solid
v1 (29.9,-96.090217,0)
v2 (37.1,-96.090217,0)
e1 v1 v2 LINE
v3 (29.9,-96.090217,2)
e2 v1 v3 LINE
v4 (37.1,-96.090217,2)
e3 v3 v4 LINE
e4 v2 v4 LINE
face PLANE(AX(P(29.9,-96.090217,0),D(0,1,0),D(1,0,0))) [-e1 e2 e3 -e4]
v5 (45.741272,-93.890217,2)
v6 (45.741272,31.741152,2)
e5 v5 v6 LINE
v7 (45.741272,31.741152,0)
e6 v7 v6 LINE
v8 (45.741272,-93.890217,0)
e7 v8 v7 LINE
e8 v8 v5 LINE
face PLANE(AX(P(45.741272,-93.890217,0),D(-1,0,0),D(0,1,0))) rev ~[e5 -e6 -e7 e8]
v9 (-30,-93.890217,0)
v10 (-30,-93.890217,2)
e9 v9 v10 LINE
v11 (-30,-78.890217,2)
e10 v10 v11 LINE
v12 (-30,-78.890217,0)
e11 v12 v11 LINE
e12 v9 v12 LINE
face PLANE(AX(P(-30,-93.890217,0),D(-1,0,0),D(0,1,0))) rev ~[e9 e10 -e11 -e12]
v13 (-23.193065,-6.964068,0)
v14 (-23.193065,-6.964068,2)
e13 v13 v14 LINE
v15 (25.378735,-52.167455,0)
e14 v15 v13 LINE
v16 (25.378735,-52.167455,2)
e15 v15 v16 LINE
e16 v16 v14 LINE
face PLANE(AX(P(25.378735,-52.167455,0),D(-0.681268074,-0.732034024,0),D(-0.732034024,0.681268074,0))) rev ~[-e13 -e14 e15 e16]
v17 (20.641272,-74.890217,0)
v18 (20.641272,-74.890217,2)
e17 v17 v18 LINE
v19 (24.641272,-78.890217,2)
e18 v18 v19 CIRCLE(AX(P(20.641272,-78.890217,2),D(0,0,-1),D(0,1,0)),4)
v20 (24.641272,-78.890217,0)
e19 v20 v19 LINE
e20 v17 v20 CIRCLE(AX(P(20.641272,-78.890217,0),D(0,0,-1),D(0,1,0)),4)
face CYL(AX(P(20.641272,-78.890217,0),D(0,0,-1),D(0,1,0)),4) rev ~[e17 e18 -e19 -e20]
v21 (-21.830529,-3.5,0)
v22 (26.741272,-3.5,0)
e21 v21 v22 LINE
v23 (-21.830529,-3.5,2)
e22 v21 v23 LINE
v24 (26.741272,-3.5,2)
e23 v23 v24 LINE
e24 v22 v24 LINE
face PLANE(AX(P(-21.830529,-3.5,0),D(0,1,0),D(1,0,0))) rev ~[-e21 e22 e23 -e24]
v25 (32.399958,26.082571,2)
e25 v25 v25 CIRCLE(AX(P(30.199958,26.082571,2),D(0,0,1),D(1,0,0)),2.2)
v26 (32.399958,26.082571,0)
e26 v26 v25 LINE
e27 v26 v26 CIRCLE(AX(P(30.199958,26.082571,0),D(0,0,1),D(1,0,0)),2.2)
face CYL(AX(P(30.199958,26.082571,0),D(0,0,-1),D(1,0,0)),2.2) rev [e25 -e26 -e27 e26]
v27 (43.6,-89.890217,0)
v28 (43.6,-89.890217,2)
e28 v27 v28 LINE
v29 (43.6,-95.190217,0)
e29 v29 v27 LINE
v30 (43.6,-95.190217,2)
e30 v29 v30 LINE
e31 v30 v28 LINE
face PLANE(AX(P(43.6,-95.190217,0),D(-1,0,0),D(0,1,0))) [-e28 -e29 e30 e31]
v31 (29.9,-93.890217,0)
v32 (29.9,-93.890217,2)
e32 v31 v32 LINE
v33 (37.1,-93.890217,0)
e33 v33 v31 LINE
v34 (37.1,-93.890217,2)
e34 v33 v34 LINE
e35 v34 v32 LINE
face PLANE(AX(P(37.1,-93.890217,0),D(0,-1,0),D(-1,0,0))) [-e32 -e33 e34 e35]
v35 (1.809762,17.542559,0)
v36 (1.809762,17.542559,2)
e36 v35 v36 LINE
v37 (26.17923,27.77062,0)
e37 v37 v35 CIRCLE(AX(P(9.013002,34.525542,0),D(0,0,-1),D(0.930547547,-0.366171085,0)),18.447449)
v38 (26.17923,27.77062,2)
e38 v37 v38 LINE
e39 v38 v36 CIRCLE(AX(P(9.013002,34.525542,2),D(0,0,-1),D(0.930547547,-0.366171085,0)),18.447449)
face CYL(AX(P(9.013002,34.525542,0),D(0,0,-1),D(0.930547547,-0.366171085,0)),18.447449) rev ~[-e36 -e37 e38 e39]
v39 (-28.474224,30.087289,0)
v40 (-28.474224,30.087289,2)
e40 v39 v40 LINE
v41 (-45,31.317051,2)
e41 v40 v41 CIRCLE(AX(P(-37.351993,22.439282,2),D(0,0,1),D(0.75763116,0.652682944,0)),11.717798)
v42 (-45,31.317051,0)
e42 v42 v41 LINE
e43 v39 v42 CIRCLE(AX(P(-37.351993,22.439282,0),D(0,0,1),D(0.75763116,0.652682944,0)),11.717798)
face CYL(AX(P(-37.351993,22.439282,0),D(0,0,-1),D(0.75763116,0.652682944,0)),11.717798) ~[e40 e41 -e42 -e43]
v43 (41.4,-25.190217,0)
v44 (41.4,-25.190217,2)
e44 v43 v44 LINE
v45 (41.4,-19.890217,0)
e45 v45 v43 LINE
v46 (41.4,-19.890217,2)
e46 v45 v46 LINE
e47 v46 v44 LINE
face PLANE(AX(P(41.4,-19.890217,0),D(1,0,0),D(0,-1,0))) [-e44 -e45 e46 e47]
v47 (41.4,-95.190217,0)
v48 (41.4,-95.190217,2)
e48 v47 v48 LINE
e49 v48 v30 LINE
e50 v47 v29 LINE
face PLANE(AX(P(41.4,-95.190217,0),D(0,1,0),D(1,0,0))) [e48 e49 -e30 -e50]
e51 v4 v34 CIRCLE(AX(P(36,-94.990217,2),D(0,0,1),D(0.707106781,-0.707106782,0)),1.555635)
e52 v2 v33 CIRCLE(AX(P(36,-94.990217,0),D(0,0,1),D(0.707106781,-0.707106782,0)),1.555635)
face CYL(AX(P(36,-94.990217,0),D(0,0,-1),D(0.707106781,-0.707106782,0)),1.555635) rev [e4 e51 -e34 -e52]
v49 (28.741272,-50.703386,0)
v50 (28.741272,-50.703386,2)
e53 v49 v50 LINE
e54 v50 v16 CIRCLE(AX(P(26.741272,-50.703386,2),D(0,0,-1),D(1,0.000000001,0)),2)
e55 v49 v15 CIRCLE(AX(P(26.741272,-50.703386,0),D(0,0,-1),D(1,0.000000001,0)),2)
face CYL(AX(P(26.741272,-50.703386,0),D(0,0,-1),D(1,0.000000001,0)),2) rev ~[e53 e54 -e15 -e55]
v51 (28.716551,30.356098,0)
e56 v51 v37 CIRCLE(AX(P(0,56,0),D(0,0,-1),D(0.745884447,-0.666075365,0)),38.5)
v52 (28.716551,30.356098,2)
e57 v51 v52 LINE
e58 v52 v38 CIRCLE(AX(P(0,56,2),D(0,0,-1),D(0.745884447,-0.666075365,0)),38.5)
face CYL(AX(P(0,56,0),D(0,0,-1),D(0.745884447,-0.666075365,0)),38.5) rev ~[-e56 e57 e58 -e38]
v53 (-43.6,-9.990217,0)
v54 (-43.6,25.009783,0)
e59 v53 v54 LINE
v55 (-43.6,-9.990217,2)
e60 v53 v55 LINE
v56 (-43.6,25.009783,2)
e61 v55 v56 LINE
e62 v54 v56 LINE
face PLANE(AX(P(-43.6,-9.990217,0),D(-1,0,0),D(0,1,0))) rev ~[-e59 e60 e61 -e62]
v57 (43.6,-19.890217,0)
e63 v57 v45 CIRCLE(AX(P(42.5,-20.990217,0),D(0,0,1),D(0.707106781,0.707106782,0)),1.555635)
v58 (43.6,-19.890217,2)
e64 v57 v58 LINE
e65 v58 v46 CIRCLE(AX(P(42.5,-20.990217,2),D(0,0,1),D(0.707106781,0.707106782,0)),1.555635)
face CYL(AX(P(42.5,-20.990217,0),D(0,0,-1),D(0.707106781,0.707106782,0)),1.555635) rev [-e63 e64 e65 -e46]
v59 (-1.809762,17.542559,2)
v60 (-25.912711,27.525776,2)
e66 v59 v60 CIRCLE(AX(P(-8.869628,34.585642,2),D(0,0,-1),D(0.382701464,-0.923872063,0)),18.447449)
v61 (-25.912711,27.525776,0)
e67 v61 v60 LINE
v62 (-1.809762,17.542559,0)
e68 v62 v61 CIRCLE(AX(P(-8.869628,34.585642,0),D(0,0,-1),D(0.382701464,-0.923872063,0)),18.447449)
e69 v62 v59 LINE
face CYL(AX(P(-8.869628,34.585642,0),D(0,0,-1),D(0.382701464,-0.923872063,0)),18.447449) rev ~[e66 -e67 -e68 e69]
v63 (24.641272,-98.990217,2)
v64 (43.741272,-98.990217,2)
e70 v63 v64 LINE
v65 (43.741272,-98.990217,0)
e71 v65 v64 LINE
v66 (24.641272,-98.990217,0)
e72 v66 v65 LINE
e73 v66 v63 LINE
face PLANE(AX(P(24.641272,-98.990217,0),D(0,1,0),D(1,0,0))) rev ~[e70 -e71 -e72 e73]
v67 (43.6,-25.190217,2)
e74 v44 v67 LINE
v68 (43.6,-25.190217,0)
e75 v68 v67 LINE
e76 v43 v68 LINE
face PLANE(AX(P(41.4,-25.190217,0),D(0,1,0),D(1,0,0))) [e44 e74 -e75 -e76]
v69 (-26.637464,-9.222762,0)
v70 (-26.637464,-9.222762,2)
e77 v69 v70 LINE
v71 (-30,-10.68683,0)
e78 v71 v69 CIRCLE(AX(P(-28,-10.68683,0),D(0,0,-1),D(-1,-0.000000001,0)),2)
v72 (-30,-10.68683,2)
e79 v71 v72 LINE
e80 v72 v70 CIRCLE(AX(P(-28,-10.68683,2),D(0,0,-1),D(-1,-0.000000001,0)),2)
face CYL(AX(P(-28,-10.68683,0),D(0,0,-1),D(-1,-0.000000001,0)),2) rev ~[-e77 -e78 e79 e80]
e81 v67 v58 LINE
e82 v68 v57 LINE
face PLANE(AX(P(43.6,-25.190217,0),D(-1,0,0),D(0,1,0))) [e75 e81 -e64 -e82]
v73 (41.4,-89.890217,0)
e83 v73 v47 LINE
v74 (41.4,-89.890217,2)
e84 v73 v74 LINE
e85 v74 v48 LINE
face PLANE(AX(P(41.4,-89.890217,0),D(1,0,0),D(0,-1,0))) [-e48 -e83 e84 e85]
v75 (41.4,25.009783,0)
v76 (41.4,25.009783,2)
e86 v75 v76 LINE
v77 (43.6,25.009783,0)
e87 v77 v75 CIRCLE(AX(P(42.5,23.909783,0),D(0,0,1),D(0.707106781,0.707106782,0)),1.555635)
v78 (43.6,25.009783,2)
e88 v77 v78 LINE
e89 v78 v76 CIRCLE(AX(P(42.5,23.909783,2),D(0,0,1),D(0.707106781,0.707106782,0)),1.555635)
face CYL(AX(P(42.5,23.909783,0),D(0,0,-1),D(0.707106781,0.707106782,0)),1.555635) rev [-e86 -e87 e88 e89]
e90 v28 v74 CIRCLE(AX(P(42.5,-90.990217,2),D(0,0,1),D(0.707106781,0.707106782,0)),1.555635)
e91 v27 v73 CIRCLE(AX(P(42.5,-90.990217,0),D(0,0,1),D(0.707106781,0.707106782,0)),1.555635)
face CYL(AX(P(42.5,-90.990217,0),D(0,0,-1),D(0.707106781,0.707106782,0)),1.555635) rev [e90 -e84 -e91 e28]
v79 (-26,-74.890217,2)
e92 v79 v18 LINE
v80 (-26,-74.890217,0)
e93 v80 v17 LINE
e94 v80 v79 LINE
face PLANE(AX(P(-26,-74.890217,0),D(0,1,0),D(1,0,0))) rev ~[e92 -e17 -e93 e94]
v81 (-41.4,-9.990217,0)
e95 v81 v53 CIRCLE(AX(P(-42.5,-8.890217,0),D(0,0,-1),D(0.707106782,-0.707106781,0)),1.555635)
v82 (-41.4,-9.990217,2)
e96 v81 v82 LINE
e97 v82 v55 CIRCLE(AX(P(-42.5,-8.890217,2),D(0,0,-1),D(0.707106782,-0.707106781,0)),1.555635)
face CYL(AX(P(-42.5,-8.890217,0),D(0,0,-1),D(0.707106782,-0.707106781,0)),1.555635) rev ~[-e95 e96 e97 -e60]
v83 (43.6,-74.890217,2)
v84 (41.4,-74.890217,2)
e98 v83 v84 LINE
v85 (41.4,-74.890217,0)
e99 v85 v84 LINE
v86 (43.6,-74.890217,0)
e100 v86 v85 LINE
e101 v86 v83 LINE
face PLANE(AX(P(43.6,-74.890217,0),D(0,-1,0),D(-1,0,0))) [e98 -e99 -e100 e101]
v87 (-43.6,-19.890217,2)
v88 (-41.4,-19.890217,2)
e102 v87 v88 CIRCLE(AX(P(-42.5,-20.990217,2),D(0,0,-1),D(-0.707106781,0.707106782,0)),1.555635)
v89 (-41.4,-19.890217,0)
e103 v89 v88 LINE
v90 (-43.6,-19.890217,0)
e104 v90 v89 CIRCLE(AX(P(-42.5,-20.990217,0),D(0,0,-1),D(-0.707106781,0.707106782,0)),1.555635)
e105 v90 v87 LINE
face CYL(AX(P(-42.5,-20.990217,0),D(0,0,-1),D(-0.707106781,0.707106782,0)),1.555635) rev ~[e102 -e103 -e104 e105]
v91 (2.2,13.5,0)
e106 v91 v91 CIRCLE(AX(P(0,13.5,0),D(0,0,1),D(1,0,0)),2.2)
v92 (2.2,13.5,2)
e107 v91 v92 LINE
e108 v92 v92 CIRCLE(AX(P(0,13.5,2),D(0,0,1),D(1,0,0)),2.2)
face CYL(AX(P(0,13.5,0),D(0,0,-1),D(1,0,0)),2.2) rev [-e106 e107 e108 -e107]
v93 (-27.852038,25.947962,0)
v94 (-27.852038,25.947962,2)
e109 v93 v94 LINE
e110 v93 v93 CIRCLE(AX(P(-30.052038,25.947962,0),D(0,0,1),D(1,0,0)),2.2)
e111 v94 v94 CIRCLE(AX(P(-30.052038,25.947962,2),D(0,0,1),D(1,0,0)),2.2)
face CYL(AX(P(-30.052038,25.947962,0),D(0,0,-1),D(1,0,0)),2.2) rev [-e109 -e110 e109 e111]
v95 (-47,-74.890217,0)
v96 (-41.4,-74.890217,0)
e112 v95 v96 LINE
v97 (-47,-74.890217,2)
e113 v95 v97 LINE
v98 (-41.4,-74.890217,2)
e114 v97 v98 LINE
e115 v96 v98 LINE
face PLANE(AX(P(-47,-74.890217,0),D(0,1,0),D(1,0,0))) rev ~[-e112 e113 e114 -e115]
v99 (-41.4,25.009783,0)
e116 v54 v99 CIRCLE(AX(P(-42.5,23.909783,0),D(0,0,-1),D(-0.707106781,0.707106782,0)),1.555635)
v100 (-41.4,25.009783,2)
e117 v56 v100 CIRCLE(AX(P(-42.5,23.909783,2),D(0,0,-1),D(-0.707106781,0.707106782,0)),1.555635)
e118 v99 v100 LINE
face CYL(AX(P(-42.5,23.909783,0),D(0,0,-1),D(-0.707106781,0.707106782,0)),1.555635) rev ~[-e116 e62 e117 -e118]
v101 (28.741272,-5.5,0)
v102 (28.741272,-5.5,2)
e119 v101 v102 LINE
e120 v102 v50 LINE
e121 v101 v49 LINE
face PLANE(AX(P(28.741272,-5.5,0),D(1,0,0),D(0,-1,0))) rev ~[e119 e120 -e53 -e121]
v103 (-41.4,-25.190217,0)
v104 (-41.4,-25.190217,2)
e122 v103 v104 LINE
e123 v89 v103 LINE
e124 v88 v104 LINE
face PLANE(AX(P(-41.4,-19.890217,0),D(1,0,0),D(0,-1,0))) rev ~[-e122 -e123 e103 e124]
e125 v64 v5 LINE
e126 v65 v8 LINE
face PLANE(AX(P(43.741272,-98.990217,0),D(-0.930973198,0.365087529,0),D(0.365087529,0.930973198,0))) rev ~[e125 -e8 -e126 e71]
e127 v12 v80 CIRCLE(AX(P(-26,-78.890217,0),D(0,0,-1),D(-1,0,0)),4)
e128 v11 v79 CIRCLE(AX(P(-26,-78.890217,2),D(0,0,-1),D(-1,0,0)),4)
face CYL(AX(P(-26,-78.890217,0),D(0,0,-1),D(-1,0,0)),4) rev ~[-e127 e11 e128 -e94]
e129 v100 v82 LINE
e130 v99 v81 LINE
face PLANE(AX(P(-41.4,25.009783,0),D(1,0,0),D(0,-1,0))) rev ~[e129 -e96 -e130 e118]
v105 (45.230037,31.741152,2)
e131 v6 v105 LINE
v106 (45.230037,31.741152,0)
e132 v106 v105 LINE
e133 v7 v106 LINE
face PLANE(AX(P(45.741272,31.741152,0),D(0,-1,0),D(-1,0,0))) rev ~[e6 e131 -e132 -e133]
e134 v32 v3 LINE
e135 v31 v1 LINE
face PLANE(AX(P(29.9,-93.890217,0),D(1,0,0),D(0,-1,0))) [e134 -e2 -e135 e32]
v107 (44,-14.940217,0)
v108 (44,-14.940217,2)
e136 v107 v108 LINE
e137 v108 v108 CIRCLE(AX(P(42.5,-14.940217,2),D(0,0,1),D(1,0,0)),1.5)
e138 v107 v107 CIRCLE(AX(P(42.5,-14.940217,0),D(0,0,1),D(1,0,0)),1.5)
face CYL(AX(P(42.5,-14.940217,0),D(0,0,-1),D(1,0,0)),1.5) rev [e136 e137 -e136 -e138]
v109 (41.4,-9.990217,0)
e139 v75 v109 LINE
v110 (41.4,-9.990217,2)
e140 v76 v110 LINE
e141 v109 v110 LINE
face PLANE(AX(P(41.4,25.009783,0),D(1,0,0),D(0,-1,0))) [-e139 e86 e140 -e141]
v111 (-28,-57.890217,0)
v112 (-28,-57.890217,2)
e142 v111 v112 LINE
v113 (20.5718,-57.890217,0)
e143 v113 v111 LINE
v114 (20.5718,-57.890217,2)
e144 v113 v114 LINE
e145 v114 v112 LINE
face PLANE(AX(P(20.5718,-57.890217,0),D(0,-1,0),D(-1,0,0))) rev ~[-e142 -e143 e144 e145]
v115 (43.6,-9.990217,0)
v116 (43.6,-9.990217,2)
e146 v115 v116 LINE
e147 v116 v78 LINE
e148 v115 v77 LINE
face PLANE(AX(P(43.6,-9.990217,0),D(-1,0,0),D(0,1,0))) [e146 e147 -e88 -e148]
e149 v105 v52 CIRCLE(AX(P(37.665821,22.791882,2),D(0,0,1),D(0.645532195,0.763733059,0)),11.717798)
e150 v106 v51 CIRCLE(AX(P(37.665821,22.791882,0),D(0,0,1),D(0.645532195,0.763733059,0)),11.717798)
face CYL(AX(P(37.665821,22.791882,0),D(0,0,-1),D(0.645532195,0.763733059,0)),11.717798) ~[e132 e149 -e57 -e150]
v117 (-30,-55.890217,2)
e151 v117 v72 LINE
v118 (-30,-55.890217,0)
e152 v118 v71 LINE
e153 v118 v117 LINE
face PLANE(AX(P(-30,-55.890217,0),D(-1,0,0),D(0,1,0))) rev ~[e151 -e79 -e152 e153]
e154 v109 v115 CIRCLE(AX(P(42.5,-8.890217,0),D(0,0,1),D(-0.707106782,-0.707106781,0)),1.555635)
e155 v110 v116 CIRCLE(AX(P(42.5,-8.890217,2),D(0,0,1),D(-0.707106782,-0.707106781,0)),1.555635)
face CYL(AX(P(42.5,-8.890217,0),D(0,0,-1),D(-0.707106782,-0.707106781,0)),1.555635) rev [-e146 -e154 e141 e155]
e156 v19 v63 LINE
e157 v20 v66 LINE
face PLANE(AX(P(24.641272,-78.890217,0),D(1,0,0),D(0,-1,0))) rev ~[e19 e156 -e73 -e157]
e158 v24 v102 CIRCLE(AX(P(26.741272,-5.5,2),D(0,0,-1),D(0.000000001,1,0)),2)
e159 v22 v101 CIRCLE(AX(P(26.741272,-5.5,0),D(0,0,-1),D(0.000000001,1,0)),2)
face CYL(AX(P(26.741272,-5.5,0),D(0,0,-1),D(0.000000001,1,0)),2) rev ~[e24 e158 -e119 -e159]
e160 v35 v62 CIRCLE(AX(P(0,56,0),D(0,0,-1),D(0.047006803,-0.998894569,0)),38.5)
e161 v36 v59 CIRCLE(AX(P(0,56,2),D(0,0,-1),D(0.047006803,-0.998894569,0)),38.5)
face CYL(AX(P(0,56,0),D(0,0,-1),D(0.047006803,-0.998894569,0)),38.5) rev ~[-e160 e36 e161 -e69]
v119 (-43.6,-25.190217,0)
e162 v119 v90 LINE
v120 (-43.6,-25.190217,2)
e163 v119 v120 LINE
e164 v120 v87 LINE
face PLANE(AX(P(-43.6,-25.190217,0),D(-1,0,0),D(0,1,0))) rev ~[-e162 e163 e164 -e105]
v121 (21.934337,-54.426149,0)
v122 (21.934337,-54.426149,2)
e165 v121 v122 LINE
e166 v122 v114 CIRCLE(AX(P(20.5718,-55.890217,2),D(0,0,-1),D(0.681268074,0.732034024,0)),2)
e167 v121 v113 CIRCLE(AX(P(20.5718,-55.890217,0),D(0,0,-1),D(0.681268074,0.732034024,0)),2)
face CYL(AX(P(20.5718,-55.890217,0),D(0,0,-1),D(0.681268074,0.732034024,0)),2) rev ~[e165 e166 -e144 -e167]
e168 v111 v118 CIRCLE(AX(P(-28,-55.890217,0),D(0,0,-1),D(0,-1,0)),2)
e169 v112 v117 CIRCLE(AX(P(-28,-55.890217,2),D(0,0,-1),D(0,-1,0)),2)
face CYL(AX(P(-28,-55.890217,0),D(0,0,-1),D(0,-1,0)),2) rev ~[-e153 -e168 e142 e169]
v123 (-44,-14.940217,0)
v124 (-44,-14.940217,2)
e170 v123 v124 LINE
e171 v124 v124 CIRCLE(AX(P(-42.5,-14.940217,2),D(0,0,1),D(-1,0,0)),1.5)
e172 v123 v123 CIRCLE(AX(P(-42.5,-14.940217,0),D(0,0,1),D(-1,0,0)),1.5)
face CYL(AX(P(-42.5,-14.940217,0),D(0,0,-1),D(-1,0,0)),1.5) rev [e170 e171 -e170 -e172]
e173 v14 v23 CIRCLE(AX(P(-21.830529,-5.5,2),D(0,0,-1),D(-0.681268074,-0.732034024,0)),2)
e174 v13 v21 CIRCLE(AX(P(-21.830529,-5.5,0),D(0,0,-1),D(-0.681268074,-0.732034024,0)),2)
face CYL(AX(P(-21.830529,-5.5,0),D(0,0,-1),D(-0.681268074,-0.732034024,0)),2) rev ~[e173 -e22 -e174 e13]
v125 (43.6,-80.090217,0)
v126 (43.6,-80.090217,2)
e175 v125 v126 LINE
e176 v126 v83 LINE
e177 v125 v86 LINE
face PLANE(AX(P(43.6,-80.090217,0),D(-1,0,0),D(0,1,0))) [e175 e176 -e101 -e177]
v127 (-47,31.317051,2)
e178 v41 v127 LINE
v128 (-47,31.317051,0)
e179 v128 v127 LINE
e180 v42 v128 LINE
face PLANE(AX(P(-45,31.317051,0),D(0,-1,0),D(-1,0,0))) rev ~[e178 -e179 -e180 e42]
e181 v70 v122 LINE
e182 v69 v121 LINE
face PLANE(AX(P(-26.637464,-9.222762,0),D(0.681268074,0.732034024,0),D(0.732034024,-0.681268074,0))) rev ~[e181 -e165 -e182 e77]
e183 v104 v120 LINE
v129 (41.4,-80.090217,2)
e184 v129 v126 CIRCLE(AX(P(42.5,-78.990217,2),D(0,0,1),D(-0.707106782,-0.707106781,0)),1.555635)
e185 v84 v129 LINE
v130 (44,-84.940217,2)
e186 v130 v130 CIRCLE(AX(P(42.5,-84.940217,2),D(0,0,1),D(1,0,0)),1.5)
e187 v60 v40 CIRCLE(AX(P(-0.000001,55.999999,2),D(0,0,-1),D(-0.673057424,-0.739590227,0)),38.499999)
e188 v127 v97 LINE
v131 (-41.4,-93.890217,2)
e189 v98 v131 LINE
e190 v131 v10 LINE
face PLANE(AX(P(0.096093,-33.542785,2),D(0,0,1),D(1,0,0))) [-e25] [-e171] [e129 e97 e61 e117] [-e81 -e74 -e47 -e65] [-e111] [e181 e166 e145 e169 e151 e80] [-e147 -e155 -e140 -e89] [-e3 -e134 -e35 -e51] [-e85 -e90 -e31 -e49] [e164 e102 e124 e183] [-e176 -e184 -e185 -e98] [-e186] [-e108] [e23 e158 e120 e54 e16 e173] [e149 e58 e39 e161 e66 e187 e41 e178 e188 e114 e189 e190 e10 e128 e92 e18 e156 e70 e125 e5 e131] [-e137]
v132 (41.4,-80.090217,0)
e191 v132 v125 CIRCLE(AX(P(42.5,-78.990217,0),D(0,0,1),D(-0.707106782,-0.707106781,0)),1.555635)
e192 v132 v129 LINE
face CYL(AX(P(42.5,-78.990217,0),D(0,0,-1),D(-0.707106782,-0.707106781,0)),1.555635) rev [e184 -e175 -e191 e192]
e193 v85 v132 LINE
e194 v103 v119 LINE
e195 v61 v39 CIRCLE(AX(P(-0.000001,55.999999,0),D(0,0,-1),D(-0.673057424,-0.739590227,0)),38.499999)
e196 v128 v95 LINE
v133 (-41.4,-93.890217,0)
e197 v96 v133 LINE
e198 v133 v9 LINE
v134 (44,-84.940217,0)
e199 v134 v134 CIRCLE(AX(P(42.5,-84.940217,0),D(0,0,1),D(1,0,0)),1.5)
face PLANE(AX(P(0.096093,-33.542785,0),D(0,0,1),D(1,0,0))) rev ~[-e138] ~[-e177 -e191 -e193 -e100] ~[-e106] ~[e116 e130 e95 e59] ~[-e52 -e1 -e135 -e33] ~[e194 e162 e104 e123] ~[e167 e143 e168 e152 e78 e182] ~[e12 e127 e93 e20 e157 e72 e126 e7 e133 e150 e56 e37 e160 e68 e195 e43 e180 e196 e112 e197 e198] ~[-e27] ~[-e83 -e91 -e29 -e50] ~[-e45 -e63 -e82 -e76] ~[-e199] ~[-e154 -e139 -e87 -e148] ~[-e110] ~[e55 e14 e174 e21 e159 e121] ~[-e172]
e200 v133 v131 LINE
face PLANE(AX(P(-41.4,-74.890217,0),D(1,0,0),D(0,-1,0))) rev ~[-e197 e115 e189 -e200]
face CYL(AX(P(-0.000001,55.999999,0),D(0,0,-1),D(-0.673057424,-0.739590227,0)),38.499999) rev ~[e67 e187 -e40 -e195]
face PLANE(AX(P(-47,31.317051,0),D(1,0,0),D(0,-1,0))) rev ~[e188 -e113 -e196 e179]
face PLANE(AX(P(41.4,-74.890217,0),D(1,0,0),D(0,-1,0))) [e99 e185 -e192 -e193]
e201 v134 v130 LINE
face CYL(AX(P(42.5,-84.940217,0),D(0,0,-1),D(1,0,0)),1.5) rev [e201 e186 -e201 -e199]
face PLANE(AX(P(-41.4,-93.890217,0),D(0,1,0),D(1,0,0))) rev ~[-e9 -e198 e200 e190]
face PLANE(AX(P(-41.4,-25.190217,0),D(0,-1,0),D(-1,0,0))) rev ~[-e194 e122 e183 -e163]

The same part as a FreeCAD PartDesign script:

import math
import FreeCAD as App
import Part
import Sketcher

V = App.Vector

doc = App.newDocument("Part")
body = doc.addObject("PartDesign::Body", "Body")

# Sketch on XY plane
sketch1 = body.newObject("Sketcher::SketchObject", "Sketch")
sketch1.AttachmentSupport = (doc.getObject("XY_Plane"), [""])
sketch1.MapMode = "FlatFace"
sketch1.addGeometry(Part.LineSegment(V(-41.4, -74.890217, 0), V(-41.4, -93.890217, 0)), False)
sketch1.addGeometry(Part.LineSegment(V(-41.4, -93.890217, 0), V(-30, -93.890217, 0)), False)
sketch1.addGeometry(Part.LineSegment(V(-30, -93.890217, 0), V(-30, -78.890217, 0)), False)
sketch1.addGeometry(Part.ArcOfCircle(Part.Circle(V(-26, -78.890217, 0), V(0, 0, 1), 4), math.radians(90), math.radians(180)), False)
sketch1.addGeometry(Part.LineSegment(V(-26, -74.890217, 0), V(20.641272, -74.890217, 0)), False)
sketch1.addGeometry(Part.ArcOfCircle(Part.Circle(V(20.641272, -78.890217, 0), V(0, 0, 1), 4), math.radians(0), math.radians(90)), False)
sketch1.addGeometry(Part.LineSegment(V(24.641272, -78.890217, 0), V(24.641272, -98.990217, 0)), False)
sketch1.addGeometry(Part.LineSegment(V(24.641272, -98.990217, 0), V(43.741272, -98.990217, 0)), False)
sketch1.addGeometry(Part.LineSegment(V(43.741272, -98.990217, 0), V(45.741272, -93.890217, 0)), False)
sketch1.addGeometry(Part.LineSegment(V(45.741272, -93.890217, 0), V(45.741272, 31.741152, 0)), False)
sketch1.addGeometry(Part.LineSegment(V(45.741272, 31.741152, 0), V(45.230037, 31.741152, 0)), False)
sketch1.addGeometry(Part.ArcOfCircle(Part.Circle(V(37.665821, 22.791882, 0), V(0, 0, 1), 11.717798), math.radians(49.794411), math.radians(139.794411)), False)
sketch1.addGeometry(Part.ArcOfCircle(Part.Circle(V(0, 56, 0), V(0, 0, 1), 38.5), math.radians(-47.157919), math.radians(-41.764877)), False)
sketch1.addGeometry(Part.ArcOfCircle(Part.Circle(V(9.013002, 34.525542, 0), V(0, 0, 1), 18.447449), math.radians(-112.983964), math.radians(-21.479671)), False)
sketch1.addGeometry(Part.ArcOfCircle(Part.Circle(V(0, 56, 0), V(0, 0, 1), 38.5), math.radians(-92.694284), math.radians(-87.305716)), False)
sketch1.addGeometry(Part.ArcOfCircle(Part.Circle(V(-8.869628, 34.585642, 0), V(0, 0, 1), 18.447449), math.radians(-157.498882), math.radians(-67.498882)), False)
sketch1.addGeometry(Part.ArcOfCircle(Part.Circle(V(-0.000001, 55.999999, 0), V(0, 0, 1), 38.499999), math.radians(-137.696521), math.radians(-132.303479)), False)
sketch1.addGeometry(Part.ArcOfCircle(Part.Circle(V(-37.351993, 22.439282, 0), V(0, 0, 1), 11.717798), math.radians(40.744191), math.radians(130.744191)), False)
sketch1.addGeometry(Part.LineSegment(V(-45, 31.317051, 0), V(-47, 31.317051, 0)), False)
sketch1.addGeometry(Part.LineSegment(V(-47, 31.317051, 0), V(-47, -74.890217, 0)), False)
sketch1.addGeometry(Part.LineSegment(V(-47, -74.890217, 0), V(-41.4, -74.890217, 0)), False)
sketch1.addGeometry(Part.LineSegment(V(29.9, -93.890217, 0), V(37.1, -93.890217, 0)), False)
sketch1.addGeometry(Part.ArcOfCircle(Part.Circle(V(36, -94.990217, 0), V(0, 0, 1), 1.555635), math.radians(-45), math.radians(45)), False)
sketch1.addGeometry(Part.LineSegment(V(37.1, -96.090217, 0), V(29.9, -96.090217, 0)), False)
sketch1.addGeometry(Part.LineSegment(V(29.9, -96.090217, 0), V(29.9, -93.890217, 0)), False)
sketch1.addGeometry(Part.LineSegment(V(43.6, -89.890217, 0), V(43.6, -95.190217, 0)), False)
sketch1.addGeometry(Part.LineSegment(V(43.6, -95.190217, 0), V(41.4, -95.190217, 0)), False)
sketch1.addGeometry(Part.LineSegment(V(41.4, -95.190217, 0), V(41.4, -89.890217, 0)), False)
sketch1.addGeometry(Part.ArcOfCircle(Part.Circle(V(42.5, -90.990217, 0), V(0, 0, 1), 1.555635), math.radians(45), math.radians(135)), False)
sketch1.addGeometry(Part.Circle(V(42.5, -84.940217, 0), V(0, 0, 1), 1.5), False)
sketch1.addGeometry(Part.LineSegment(V(41.4, -80.090217, 0), V(41.4, -74.890217, 0)), False)
sketch1.addGeometry(Part.LineSegment(V(41.4, -74.890217, 0), V(43.6, -74.890217, 0)), False)
sketch1.addGeometry(Part.LineSegment(V(43.6, -74.890217, 0), V(43.6, -80.090217, 0)), False)
sketch1.addGeometry(Part.ArcOfCircle(Part.Circle(V(42.5, -78.990217, 0), V(0, 0, 1), 1.555635), math.radians(-135), math.radians(-45)), False)
sketch1.addGeometry(Part.ArcOfCircle(Part.Circle(V(-42.5, -20.990217, 0), V(0, 0, 1), 1.555635), math.radians(45), math.radians(135)), False)
sketch1.addGeometry(Part.LineSegment(V(-41.4, -19.890217, 0), V(-41.4, -25.190217, 0)), False)
sketch1.addGeometry(Part.LineSegment(V(-41.4, -25.190217, 0), V(-43.6, -25.190217, 0)), False)
sketch1.addGeometry(Part.LineSegment(V(-43.6, -25.190217, 0), V(-43.6, -19.890217, 0)), False)
sketch1.addGeometry(Part.Circle(V(-42.5, -14.940217, 0), V(0, 0, 1), 1.5), False)
sketch1.addGeometry(Part.ArcOfCircle(Part.Circle(V(-28, -10.68683, 0), V(0, 0, 1), 2), math.radians(47.057186), math.radians(180)), False)
sketch1.addGeometry(Part.LineSegment(V(-26.637464, -9.222762, 0), V(21.934337, -54.426149, 0)), False)
sketch1.addGeometry(Part.ArcOfCircle(Part.Circle(V(20.5718, -55.890217, 0), V(0, 0, 1), 2), math.radians(-90), math.radians(47.057186)), False)
sketch1.addGeometry(Part.LineSegment(V(20.5718, -57.890217, 0), V(-28, -57.890217, 0)), False)
sketch1.addGeometry(Part.ArcOfCircle(Part.Circle(V(-28, -55.890217, 0), V(0, 0, 1), 2), math.radians(180), math.radians(270)), False)
sketch1.addGeometry(Part.LineSegment(V(-30, -55.890217, 0), V(-30, -10.68683, 0)), False)
sketch1.addGeometry(Part.ArcOfCircle(Part.Circle(V(-42.5, -8.890217, 0), V(0, 0, 1), 1.555635), math.radians(-135), math.radians(-45)), False)
sketch1.addGeometry(Part.LineSegment(V(-43.6, -9.990217, 0), V(-43.6, 25.009783, 0)), False)
sketch1.addGeometry(Part.ArcOfCircle(Part.Circle(V(-42.5, 23.909783, 0), V(0, 0, 1), 1.555635), math.radians(45), math.radians(135)), False)
sketch1.addGeometry(Part.LineSegment(V(-41.4, 25.009783, 0), V(-41.4, -9.990217, 0)), False)
sketch1.addGeometry(Part.Circle(V(-30.052038, 25.947962, 0), V(0, 0, 1), 2.2), False)
sketch1.addGeometry(Part.ArcOfCircle(Part.Circle(V(-21.830529, -5.5, 0), V(0, 0, 1), 2), math.radians(90), math.radians(227.057186)), False)
sketch1.addGeometry(Part.LineSegment(V(-21.830529, -3.5, 0), V(26.741272, -3.5, 0)), False)
sketch1.addGeometry(Part.ArcOfCircle(Part.Circle(V(26.741272, -5.5, 0), V(0, 0, 1), 2), math.radians(0), math.radians(90)), False)
sketch1.addGeometry(Part.LineSegment(V(28.741272, -5.5, 0), V(28.741272, -50.703386, 0)), False)
sketch1.addGeometry(Part.ArcOfCircle(Part.Circle(V(26.741272, -50.703386, 0), V(0, 0, 1), 2), math.radians(-132.942814), math.radians(0)), False)
sketch1.addGeometry(Part.LineSegment(V(25.378735, -52.167455, 0), V(-23.193065, -6.964068, 0)), False)
sketch1.addGeometry(Part.LineSegment(V(43.6, -19.890217, 0), V(43.6, -25.190217, 0)), False)
sketch1.addGeometry(Part.LineSegment(V(43.6, -25.190217, 0), V(41.4, -25.190217, 0)), False)
sketch1.addGeometry(Part.LineSegment(V(41.4, -25.190217, 0), V(41.4, -19.890217, 0)), False)
sketch1.addGeometry(Part.ArcOfCircle(Part.Circle(V(42.5, -20.990217, 0), V(0, 0, 1), 1.555635), math.radians(45), math.radians(135)), False)
sketch1.addGeometry(Part.Circle(V(42.5, -14.940217, 0), V(0, 0, 1), 1.5), False)
sketch1.addGeometry(Part.Circle(V(0, 13.5, 0), V(0, 0, 1), 2.2), False)
sketch1.addGeometry(Part.LineSegment(V(41.4, -9.990217, 0), V(41.4, 25.009783, 0)), False)
sketch1.addGeometry(Part.ArcOfCircle(Part.Circle(V(42.5, 23.909783, 0), V(0, 0, 1), 1.555635), math.radians(45), math.radians(135)), False)
sketch1.addGeometry(Part.LineSegment(V(43.6, 25.009783, 0), V(43.6, -9.990217, 0)), False)
sketch1.addGeometry(Part.ArcOfCircle(Part.Circle(V(42.5, -8.890217, 0), V(0, 0, 1), 1.555635), math.radians(-135), math.radians(-45)), False)
sketch1.addGeometry(Part.Circle(V(30.199958, 26.082571, 0), V(0, 0, 1), 2.2), False)
sketch1.addConstraint(Sketcher.Constraint("Coincident", 0, 2, 1, 1))
sketch1.addConstraint(Sketcher.Constraint("Coincident", 1, 2, 2, 1))
sketch1.addConstraint(Sketcher.Constraint("Tangent", 2, 2, 3, 2))
sketch1.addConstraint(Sketcher.Constraint("Tangent", 3, 1, 4, 1))
sketch1.addConstraint(Sketcher.Constraint("Tangent", 4, 2, 5, 2))
sketch1.addConstraint(Sketcher.Constraint("Tangent", 5, 1, 6, 1))
sketch1.addConstraint(Sketcher.Constraint("Coincident", 6, 2, 7, 1))
sketch1.addConstraint(Sketcher.Constraint("Coincident", 7, 2, 8, 1))
sketch1.addConstraint(Sketcher.Constraint("Coincident", 8, 2, 9, 1))
sketch1.addConstraint(Sketcher.Constraint("Coincident", 9, 2, 10, 1))
sketch1.addConstraint(Sketcher.Constraint("Coincident", 10, 2, 11, 1))
sketch1.addConstraint(Sketcher.Constraint("Coincident", 11, 2, 12, 2))
sketch1.addConstraint(Sketcher.Constraint("Coincident", 12, 1, 13, 2))
sketch1.addConstraint(Sketcher.Constraint("Coincident", 13, 1, 14, 2))
sketch1.addConstraint(Sketcher.Constraint("Coincident", 14, 1, 15, 2))
sketch1.addConstraint(Sketcher.Constraint("Coincident", 15, 1, 16, 2))
sketch1.addConstraint(Sketcher.Constraint("Coincident", 16, 1, 17, 1))
sketch1.addConstraint(Sketcher.Constraint("Coincident", 17, 2, 18, 1))
sketch1.addConstraint(Sketcher.Constraint("Coincident", 18, 2, 19, 1))
sketch1.addConstraint(Sketcher.Constraint("Coincident", 19, 2, 20, 1))
sketch1.addConstraint(Sketcher.Constraint("Coincident", 20, 2, 0, 1))
sketch1.addConstraint(Sketcher.Constraint("Coincident", 21, 2, 22, 2))
sketch1.addConstraint(Sketcher.Constraint("Coincident", 22, 1, 23, 1))
sketch1.addConstraint(Sketcher.Constraint("Coincident", 23, 2, 24, 1))
sketch1.addConstraint(Sketcher.Constraint("Coincident", 24, 2, 21, 1))
sketch1.addConstraint(Sketcher.Constraint("Coincident", 25, 2, 26, 1))
sketch1.addConstraint(Sketcher.Constraint("Coincident", 26, 2, 27, 1))
sketch1.addConstraint(Sketcher.Constraint("Coincident", 27, 2, 28, 2))
sketch1.addConstraint(Sketcher.Constraint("Coincident", 28, 1, 25, 1))
sketch1.addConstraint(Sketcher.Constraint("Coincident", 30, 2, 31, 1))
sketch1.addConstraint(Sketcher.Constraint("Coincident", 31, 2, 32, 1))
sketch1.addConstraint(Sketcher.Constraint("Coincident", 32, 2, 33, 2))
sketch1.addConstraint(Sketcher.Constraint("Coincident", 33, 1, 30, 1))
sketch1.addConstraint(Sketcher.Constraint("Coincident", 34, 1, 35, 1))
sketch1.addConstraint(Sketcher.Constraint("Coincident", 35, 2, 36, 1))
sketch1.addConstraint(Sketcher.Constraint("Coincident", 36, 2, 37, 1))
sketch1.addConstraint(Sketcher.Constraint("Coincident", 37, 2, 34, 2))
sketch1.addConstraint(Sketcher.Constraint("Tangent", 39, 1, 40, 1))
sketch1.addConstraint(Sketcher.Constraint("Tangent", 40, 2, 41, 2))
sketch1.addConstraint(Sketcher.Constraint("Tangent", 41, 1, 42, 1))
sketch1.addConstraint(Sketcher.Constraint("Tangent", 42, 2, 43, 2))
sketch1.addConstraint(Sketcher.Constraint("Tangent", 43, 1, 44, 1))
sketch1.addConstraint(Sketcher.Constraint("Tangent", 44, 2, 39, 2))
sketch1.addConstraint(Sketcher.Constraint("Coincident", 45, 1, 46, 1))
sketch1.addConstraint(Sketcher.Constraint("Coincident", 46, 2, 47, 2))
sketch1.addConstraint(Sketcher.Constraint("Coincident", 47, 1, 48, 1))
sketch1.addConstraint(Sketcher.Constraint("Coincident", 48, 2, 45, 2))
sketch1.addConstraint(Sketcher.Constraint("Tangent", 50, 1, 51, 1))
sketch1.addConstraint(Sketcher.Constraint("Tangent", 51, 2, 52, 2))
sketch1.addConstraint(Sketcher.Constraint("Tangent", 52, 1, 53, 1))
sketch1.addConstraint(Sketcher.Constraint("Tangent", 53, 2, 54, 2))
sketch1.addConstraint(Sketcher.Constraint("Tangent", 54, 1, 55, 1))
sketch1.addConstraint(Sketcher.Constraint("Tangent", 55, 2, 50, 2))
sketch1.addConstraint(Sketcher.Constraint("Coincident", 56, 2, 57, 1))
sketch1.addConstraint(Sketcher.Constraint("Coincident", 57, 2, 58, 1))
sketch1.addConstraint(Sketcher.Constraint("Coincident", 58, 2, 59, 2))
sketch1.addConstraint(Sketcher.Constraint("Coincident", 59, 1, 56, 1))
sketch1.addConstraint(Sketcher.Constraint("Coincident", 62, 2, 63, 2))
sketch1.addConstraint(Sketcher.Constraint("Coincident", 63, 1, 64, 1))
sketch1.addConstraint(Sketcher.Constraint("Coincident", 64, 2, 65, 2))
sketch1.addConstraint(Sketcher.Constraint("Coincident", 65, 1, 62, 1))
sketch1.addConstraint(Sketcher.Constraint("Vertical", 0))
sketch1.addConstraint(Sketcher.Constraint("Horizontal", 1))
sketch1.addConstraint(Sketcher.Constraint("Vertical", 2))
sketch1.addConstraint(Sketcher.Constraint("Horizontal", 4))
sketch1.addConstraint(Sketcher.Constraint("Vertical", 6))
sketch1.addConstraint(Sketcher.Constraint("Horizontal", 7))
sketch1.addConstraint(Sketcher.Constraint("Vertical", 9))
sketch1.addConstraint(Sketcher.Constraint("Horizontal", 10))
sketch1.addConstraint(Sketcher.Constraint("Horizontal", 18))
sketch1.addConstraint(Sketcher.Constraint("Vertical", 19))
sketch1.addConstraint(Sketcher.Constraint("Horizontal", 20))
sketch1.addConstraint(Sketcher.Constraint("Horizontal", 21))
sketch1.addConstraint(Sketcher.Constraint("Horizontal", 23))
sketch1.addConstraint(Sketcher.Constraint("Vertical", 24))
sketch1.addConstraint(Sketcher.Constraint("Vertical", 25))
sketch1.addConstraint(Sketcher.Constraint("Horizontal", 26))
sketch1.addConstraint(Sketcher.Constraint("Vertical", 27))
sketch1.addConstraint(Sketcher.Constraint("Vertical", 30))
sketch1.addConstraint(Sketcher.Constraint("Horizontal", 31))
sketch1.addConstraint(Sketcher.Constraint("Vertical", 32))
sketch1.addConstraint(Sketcher.Constraint("Vertical", 35))
sketch1.addConstraint(Sketcher.Constraint("Horizontal", 36))
sketch1.addConstraint(Sketcher.Constraint("Vertical", 37))
sketch1.addConstraint(Sketcher.Constraint("Horizontal", 42))
sketch1.addConstraint(Sketcher.Constraint("Vertical", 44))
sketch1.addConstraint(Sketcher.Constraint("Vertical", 46))
sketch1.addConstraint(Sketcher.Constraint("Vertical", 48))
sketch1.addConstraint(Sketcher.Constraint("Horizontal", 51))
sketch1.addConstraint(Sketcher.Constraint("Vertical", 53))
sketch1.addConstraint(Sketcher.Constraint("Vertical", 56))
sketch1.addConstraint(Sketcher.Constraint("Horizontal", 57))
sketch1.addConstraint(Sketcher.Constraint("Vertical", 58))
sketch1.addConstraint(Sketcher.Constraint("Vertical", 62))
sketch1.addConstraint(Sketcher.Constraint("Vertical", 64))
sketch1.addConstraint(Sketcher.Constraint("Coincident", 14, 3, 12, 3))
sketch1.addConstraint(Sketcher.Constraint("Coincident", 16, 3, 12, 3))
sketch1.addConstraint(Sketcher.Constraint("Equal", 3, 5))
sketch1.addConstraint(Sketcher.Constraint("Equal", 12, 14))
sketch1.addConstraint(Sketcher.Constraint("Equal", 13, 15))
sketch1.addConstraint(Sketcher.Constraint("Equal", 14, 16))
sketch1.addConstraint(Sketcher.Constraint("Equal", 11, 17))
sketch1.addConstraint(Sketcher.Constraint("Equal", 22, 28))
sketch1.addConstraint(Sketcher.Constraint("Equal", 28, 33))
sketch1.addConstraint(Sketcher.Constraint("Equal", 33, 34))
sketch1.addConstraint(Sketcher.Constraint("Equal", 29, 38))
sketch1.addConstraint(Sketcher.Constraint("Equal", 39, 41))
sketch1.addConstraint(Sketcher.Constraint("Equal", 41, 43))
sketch1.addConstraint(Sketcher.Constraint("Equal", 34, 45))
sketch1.addConstraint(Sketcher.Constraint("Equal", 45, 47))
sketch1.addConstraint(Sketcher.Constraint("Equal", 43, 50))
sketch1.addConstraint(Sketcher.Constraint("Equal", 50, 52))
sketch1.addConstraint(Sketcher.Constraint("Equal", 52, 54))
sketch1.addConstraint(Sketcher.Constraint("Equal", 47, 59))
sketch1.addConstraint(Sketcher.Constraint("Equal", 38, 60))
sketch1.addConstraint(Sketcher.Constraint("Equal", 49, 61))
sketch1.addConstraint(Sketcher.Constraint("Equal", 59, 63))
sketch1.addConstraint(Sketcher.Constraint("Equal", 63, 65))
sketch1.addConstraint(Sketcher.Constraint("Equal", 61, 66))
sketch1.addConstraint(Sketcher.Constraint("Symmetric", 34, 3, 59, 3, -2))
sketch1.addConstraint(Sketcher.Constraint("Symmetric", 38, 3, 60, 3, -2))
sketch1.addConstraint(Sketcher.Constraint("Symmetric", 47, 3, 63, 3, -2))
sketch1.addConstraint(Sketcher.Constraint("Symmetric", 45, 3, 65, 3, -2))
sketch1.addConstraint(Sketcher.Constraint("Symmetric", 13, 1, 14, 1, -2))
sketch1.addConstraint(Sketcher.Constraint("Symmetric", 20, 2, 30, 2, -2))
sketch1.addConstraint(Sketcher.Constraint("Symmetric", 36, 2, 56, 2, -2))
sketch1.addConstraint(Sketcher.Constraint("PointOnObject", 61, 3, -2))
sketch1.addConstraint(Sketcher.Constraint("Parallel", 40, 55))
sketch1.addConstraint(Sketcher.Constraint("Horizontal", 1, 2, 8, 2))
sketch1.addConstraint(Sketcher.Constraint("Horizontal", 4, 2, 19, 2))
sketch1.addConstraint(Sketcher.Constraint("Horizontal", 8, 2, 21, 2))
sketch1.addConstraint(Sketcher.Constraint("Horizontal", 27, 2, 28, 1))
sketch1.addConstraint(Sketcher.Constraint("Horizontal", 32, 2, 33, 1))
sketch1.addConstraint(Sketcher.Constraint("Horizontal", 34, 1, 37, 2))
sketch1.addConstraint(Sketcher.Constraint("Horizontal", 46, 2, 47, 1))
sketch1.addConstraint(Sketcher.Constraint("Horizontal", 45, 1, 48, 2))
sketch1.addConstraint(Sketcher.Constraint("Horizontal", 37, 2, 58, 2))
sketch1.addConstraint(Sketcher.Constraint("Horizontal", 47, 1, 62, 2))
sketch1.addConstraint(Sketcher.Constraint("Horizontal", 62, 2, 63, 1))
sketch1.addConstraint(Sketcher.Constraint("Vertical", 28, 3, 29, 3))
sketch1.addConstraint(Sketcher.Constraint("Vertical", 29, 3, 33, 3))
sketch1.addConstraint(Sketcher.Constraint("Vertical", 34, 3, 38, 3))
sketch1.addConstraint(Sketcher.Constraint("Vertical", 38, 3, 45, 3))
sketch1.addConstraint(Sketcher.Constraint("Vertical", 33, 3, 59, 3))
sketch1.addConstraint(Sketcher.Constraint("Vertical", 21, 2, 22, 1))
sketch1.addConstraint(Sketcher.Constraint("Vertical", 27, 2, 30, 2))
sketch1.addConstraint(Sketcher.Constraint("Vertical", 20, 2, 34, 1))
sketch1.addConstraint(Sketcher.Constraint("Vertical", 2, 2, 43, 1))
sketch1.addConstraint(Sketcher.Constraint("Vertical", 37, 2, 45, 1))
sketch1.addConstraint(Sketcher.Constraint("Equal", 42, 51))
sketch1.addConstraint(Sketcher.Constraint("Equal", 57, 24))
sketch1.addConstraint(Sketcher.Constraint("Equal", 27, 35))
sketch1.addConstraint(Sketcher.Constraint("Diameter", 29, 3.0))
sketch1.addConstraint(Sketcher.Constraint("Radius", 3, 4.0))
sketch1.addConstraint(Sketcher.Constraint("Radius", 39, 2.0))
sketch1.addConstraint(Sketcher.Constraint("Diameter", 49, 4.4))
sketch1.addConstraint(Sketcher.Constraint("Radius", 12, 38.5))
sketch1.addConstraint(Sketcher.Constraint("DistanceX", 18, 2, 18, 1, 2.0))
sketch1.addConstraint(Sketcher.Constraint("DistanceY", 0, 2, 0, 1, 19.0))
sketch1.addConstraint(Sketcher.Constraint("DistanceY", 46, 1, 46, 2, 35.0))
sketch1.addConstraint(Sketcher.Constraint("DistanceX", 1, 1, 1, 2, 11.4))
sketch1.addConstraint(Sketcher.Constraint("DistanceX", 7, 1, 7, 2, 19.1))
sketch1.addConstraint(Sketcher.Constraint("DistanceX", 20, 1, 20, 2, 5.6))
sketch1.addConstraint(Sketcher.Constraint("DistanceX", 21, 1, 21, 2, 7.2))
sketch1.addConstraint(Sketcher.Constraint("DistanceX", 26, 2, 26, 1, 2.2))
sketch1.addConstraint(Sketcher.Constraint("DistanceY", 6, 2, 6, 1, 20.1))
sketch1.addConstraint(Sketcher.Constraint("DistanceY", 25, 2, 25, 1, 5.3))
sketch1.addConstraint(Sketcher.Constraint("DistanceY", 30, 1, 30, 2, 5.2))
sketch1.addConstraint(Sketcher.Constraint("DistanceX", 3, 3, -1, 1, 26.0))
sketch1.addConstraint(Sketcher.Constraint("DistanceY", -1, 1, 12, 3, 56.0))
sketch1.addConstraint(Sketcher.Constraint("DistanceX", -1, 1, 22, 3, 36.0))
sketch1.addConstraint(Sketcher.Constraint("DistanceY", 50, 3, -1, 1, 5.5))
sketch1.addConstraint(Sketcher.Constraint("DistanceY", -1, 1, 61, 3, 13.5))
sketch1.addConstraint(Sketcher.Constraint("DistanceX", -1, 1, 21, 2, 37.1))
sketch1.addConstraint(Sketcher.Constraint("Radius", 11, 11.717798))
sketch1.addConstraint(Sketcher.Constraint("Radius", 13, 18.447449))
sketch1.addConstraint(Sketcher.Constraint("DistanceX", 42, 2, 42, 1, 48.5718))
sketch1.addConstraint(Sketcher.Constraint("DistanceX", -1, 1, 13, 3, 9.013002))
sketch1.addConstraint(Sketcher.Constraint("DistanceX", 4, 1, 4, 2, 46.641272))
sketch1.addConstraint(Sketcher.Constraint("DistanceY", 9, 1, 9, 2, 125.631369))
sketch1.addConstraint(Sketcher.Constraint("DistanceY", -1, 1, 11, 2, 30.356098))
sketch1.addConstraint(Sketcher.Constraint("Distance", 8, 5.478138))
sketch1.addConstraint(Sketcher.Constraint("DistanceX", 10, 2, 10, 1, 0.511234))
sketch1.addConstraint(Sketcher.Constraint("DistanceY", 19, 2, 19, 1, 106.207268))
sketch1.addConstraint(Sketcher.Constraint("DistanceY", 44, 1, 44, 2, 45.203386))
sketch1.addConstraint(Sketcher.Constraint("DistanceX", -1, 1, 11, 3, 37.665821))
sketch1.addConstraint(Sketcher.Constraint("DistanceY", 39, 3, -1, 1, 10.68683))
sketch1.addConstraint(Sketcher.Constraint("DistanceX", 49, 3, -1, 1, 30.052038))
sketch1.addConstraint(Sketcher.Constraint("DistanceY", -1, 1, 49, 3, 25.947962))
sketch1.addConstraint(Sketcher.Constraint("DistanceX", 50, 3, -1, 1, 21.830529))
sketch1.addConstraint(Sketcher.Constraint("DistanceY", -1, 1, 66, 3, 26.082571))
sketch1.addConstraint(Sketcher.Constraint("DistanceX", -1, 1, 12, 1, 26.17923))
sketch1.addConstraint(Sketcher.Constraint("DistanceX", 15, 1, -1, 1, 25.912711))
sketch1.addConstraint(Sketcher.Constraint("DistanceY", -1, 1, 16, 1, 30.087289))
sketch1.addConstraint(Sketcher.Constraint("DistanceY", 28, 3, -1, 1, 90.990217))
sketch1.addConstraint(Sketcher.Constraint("DistanceY", 29, 3, -1, 1, 84.940217))
sketch1.addConstraint(Sketcher.Constraint("DistanceY", 34, 3, -1, 1, 20.990217))
sketch1.addConstraint(Sketcher.Constraint("DistanceY", 38, 3, -1, 1, 14.940217))
sketch1.addConstraint(Sketcher.Constraint("DistanceY", 45, 3, -1, 1, 8.890217))
sketch1.addConstraint(Sketcher.Constraint("DistanceX", -1, 1, 66, 3, 30.199958))
pad1 = body.newObject("PartDesign::Pad", "Pad")
pad1.Profile = sketch1
pad1.Length = 2

doc.recompute()
